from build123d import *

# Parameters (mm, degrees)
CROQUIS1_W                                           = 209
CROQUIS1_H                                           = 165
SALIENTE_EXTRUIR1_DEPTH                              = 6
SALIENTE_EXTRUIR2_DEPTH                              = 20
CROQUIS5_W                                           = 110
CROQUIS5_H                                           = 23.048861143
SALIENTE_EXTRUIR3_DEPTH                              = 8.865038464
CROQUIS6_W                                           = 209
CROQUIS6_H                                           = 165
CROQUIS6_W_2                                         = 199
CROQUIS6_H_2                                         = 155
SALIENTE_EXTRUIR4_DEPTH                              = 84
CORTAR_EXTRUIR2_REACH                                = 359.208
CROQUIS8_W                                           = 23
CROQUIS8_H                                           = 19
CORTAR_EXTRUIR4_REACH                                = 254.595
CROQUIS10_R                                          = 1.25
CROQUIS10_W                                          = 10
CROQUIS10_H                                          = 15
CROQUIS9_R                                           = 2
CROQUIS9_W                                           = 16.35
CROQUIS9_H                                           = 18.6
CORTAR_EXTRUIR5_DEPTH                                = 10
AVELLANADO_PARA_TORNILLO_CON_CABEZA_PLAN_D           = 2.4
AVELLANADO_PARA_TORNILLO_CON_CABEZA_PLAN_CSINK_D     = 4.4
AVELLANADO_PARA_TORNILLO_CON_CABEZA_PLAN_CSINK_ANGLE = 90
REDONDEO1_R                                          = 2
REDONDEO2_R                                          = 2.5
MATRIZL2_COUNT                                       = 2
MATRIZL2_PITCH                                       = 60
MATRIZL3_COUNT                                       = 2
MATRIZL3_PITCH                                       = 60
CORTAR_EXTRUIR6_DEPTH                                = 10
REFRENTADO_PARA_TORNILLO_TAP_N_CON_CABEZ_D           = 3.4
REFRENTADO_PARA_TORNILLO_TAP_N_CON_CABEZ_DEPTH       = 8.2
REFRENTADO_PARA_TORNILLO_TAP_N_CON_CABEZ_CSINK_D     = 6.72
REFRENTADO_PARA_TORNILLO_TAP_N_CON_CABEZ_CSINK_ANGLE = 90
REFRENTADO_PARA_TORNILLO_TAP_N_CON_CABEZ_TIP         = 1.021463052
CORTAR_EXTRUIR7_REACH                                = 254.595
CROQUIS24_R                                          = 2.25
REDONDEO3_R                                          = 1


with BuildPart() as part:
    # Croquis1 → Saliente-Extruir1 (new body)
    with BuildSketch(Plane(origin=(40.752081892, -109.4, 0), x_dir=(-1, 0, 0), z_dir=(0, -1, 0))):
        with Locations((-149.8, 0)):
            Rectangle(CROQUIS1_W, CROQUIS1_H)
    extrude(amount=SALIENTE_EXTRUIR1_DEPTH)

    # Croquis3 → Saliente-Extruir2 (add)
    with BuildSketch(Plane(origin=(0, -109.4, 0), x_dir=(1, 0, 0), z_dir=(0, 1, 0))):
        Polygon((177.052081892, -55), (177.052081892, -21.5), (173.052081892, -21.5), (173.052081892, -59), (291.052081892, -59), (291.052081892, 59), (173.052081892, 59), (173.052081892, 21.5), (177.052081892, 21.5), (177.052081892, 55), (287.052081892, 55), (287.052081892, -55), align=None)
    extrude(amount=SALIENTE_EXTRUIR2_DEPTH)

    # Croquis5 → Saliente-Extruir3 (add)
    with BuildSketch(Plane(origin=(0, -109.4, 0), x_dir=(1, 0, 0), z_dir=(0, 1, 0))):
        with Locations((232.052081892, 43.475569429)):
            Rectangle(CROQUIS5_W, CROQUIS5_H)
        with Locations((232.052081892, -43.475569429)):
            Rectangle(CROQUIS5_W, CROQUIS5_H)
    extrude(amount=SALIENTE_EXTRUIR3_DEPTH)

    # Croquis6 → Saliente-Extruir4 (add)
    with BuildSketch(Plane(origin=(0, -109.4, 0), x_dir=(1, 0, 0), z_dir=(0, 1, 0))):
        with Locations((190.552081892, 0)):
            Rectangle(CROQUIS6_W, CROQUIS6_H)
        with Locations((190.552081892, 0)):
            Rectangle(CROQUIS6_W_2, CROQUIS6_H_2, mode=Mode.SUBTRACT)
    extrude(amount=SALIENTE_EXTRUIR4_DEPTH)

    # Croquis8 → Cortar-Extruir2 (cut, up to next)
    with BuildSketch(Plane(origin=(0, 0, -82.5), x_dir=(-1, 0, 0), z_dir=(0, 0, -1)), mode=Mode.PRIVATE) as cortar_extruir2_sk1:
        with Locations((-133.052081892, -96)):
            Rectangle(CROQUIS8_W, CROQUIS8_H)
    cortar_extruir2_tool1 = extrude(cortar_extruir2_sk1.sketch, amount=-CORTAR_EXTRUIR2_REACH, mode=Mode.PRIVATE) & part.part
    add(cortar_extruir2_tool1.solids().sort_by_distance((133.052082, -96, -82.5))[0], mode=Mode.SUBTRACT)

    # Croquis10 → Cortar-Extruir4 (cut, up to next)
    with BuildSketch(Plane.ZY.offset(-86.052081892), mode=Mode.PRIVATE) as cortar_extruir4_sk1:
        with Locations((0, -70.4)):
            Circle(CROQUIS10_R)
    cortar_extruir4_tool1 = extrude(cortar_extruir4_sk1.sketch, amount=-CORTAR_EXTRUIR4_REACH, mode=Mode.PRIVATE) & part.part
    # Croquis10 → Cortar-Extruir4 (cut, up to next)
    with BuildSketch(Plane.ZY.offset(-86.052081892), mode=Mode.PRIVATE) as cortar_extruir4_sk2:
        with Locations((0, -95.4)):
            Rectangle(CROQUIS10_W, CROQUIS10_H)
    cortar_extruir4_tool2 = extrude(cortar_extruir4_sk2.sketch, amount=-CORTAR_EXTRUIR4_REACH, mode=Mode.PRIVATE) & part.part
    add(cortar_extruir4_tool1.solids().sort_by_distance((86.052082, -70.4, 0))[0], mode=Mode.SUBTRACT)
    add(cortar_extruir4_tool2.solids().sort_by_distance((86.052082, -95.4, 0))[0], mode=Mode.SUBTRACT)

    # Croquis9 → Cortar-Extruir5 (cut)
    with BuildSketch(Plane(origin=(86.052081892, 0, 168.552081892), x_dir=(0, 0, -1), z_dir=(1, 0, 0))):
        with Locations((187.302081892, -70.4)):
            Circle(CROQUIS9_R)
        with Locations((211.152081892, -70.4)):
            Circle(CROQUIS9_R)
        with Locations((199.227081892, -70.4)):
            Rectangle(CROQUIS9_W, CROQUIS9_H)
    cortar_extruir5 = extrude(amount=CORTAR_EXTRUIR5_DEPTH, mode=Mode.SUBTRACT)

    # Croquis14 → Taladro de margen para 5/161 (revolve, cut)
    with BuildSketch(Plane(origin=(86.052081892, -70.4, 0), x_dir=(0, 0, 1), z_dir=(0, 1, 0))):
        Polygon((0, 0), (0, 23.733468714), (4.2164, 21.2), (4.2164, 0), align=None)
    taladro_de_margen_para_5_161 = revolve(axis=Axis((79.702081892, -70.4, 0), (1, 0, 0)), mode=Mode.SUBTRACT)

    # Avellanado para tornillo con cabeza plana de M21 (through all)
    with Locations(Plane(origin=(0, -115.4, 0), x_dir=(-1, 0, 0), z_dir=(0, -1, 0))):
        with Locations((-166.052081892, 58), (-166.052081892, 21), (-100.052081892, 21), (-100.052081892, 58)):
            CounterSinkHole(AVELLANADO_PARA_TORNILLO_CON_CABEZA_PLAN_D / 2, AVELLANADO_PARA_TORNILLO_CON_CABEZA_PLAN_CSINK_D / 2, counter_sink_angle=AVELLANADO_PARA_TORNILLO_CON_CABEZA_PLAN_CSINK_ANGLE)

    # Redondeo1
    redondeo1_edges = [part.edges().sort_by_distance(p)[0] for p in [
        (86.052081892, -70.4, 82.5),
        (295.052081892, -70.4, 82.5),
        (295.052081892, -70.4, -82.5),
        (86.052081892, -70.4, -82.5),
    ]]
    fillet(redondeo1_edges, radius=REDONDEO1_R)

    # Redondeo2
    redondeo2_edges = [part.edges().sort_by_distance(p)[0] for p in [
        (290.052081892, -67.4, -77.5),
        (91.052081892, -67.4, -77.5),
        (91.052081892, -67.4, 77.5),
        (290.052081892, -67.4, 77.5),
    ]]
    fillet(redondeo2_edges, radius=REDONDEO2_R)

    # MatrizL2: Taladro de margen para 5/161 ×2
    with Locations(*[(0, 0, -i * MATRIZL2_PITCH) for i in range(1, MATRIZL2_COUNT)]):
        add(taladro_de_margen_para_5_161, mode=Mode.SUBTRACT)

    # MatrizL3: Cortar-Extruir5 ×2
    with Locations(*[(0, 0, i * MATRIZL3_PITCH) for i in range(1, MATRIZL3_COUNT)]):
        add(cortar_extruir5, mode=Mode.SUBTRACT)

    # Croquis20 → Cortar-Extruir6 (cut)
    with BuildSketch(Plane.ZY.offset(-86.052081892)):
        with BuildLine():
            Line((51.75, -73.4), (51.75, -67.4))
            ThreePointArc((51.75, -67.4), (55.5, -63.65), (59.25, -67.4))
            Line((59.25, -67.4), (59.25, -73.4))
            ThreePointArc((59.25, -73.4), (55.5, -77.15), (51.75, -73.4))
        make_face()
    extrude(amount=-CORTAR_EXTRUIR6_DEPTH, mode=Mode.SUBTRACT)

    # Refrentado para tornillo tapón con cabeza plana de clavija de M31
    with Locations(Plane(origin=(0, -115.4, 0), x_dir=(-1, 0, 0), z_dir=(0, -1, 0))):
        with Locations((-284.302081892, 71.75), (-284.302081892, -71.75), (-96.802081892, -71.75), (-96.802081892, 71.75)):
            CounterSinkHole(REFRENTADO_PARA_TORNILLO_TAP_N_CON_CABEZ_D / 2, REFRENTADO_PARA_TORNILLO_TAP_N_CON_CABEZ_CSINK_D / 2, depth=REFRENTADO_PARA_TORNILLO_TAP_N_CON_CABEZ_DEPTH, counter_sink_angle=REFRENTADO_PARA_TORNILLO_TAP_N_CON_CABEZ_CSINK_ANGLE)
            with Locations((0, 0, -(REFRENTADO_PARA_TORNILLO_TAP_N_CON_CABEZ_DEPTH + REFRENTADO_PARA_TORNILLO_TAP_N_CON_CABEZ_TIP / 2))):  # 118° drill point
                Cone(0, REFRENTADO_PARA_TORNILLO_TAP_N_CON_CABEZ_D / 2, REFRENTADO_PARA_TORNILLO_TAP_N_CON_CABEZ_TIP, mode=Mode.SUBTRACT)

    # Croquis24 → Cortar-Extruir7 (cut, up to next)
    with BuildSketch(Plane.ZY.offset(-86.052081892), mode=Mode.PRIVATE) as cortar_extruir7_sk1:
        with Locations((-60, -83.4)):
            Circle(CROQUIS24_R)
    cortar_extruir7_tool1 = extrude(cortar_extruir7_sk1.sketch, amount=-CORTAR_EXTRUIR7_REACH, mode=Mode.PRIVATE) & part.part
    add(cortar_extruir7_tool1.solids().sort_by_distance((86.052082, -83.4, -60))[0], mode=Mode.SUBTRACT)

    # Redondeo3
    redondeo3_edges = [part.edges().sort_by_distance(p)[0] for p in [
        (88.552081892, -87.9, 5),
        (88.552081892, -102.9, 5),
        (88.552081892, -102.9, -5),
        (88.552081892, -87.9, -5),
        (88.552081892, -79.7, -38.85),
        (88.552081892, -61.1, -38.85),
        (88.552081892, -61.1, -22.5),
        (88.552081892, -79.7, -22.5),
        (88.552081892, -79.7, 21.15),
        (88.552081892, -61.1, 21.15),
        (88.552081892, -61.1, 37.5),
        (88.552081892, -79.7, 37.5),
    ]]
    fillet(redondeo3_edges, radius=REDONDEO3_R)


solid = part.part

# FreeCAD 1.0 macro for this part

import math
import FreeCAD as App
import Part
import Sketcher
from FreeCAD import Vector
Q = App.Units.Quantity


def edges_at(feature, points):
    """Names of the edges that pass closest to the given points."""
    edges = feature.Shape.Edges
    near = lambda p: min(range(len(edges)), key=lambda i: edges[i].distToShape(Part.Vertex(*p))[0])
    return sorted({f"Edge{near(p) + 1}" for p in points})

doc = App.newDocument("Part")
body = doc.addObject("PartDesign::Body", "Body")

sketch1 = body.newObject("Sketcher::SketchObject", "Sketch")
sketch1.AttachmentSupport = (doc.getObject("XZ_Plane"), [""])
sketch1.MapMode = "FlatFace"
sketch1.AttachmentOffset = App.Placement(Vector(0, 0, 109.4), App.Rotation())
sketch1.addGeometry(Part.LineSegment(Vector(295, -82, 0), Vector(295, 82, 0)), False)
sketch1.addGeometry(Part.LineSegment(Vector(295, 82, 0), Vector(86, 82, 0)), False)
sketch1.addGeometry(Part.LineSegment(Vector(86, 82, 0), Vector(86, -82, 0)), False)
sketch1.addGeometry(Part.LineSegment(Vector(86, -82, 0), Vector(295, -82, 0)), False)
sketch1.addConstraint(Sketcher.Constraint("Coincident", 0, 2, 1, 1))
sketch1.addConstraint(Sketcher.Constraint("Coincident", 1, 2, 2, 1))
sketch1.addConstraint(Sketcher.Constraint("Coincident", 2, 2, 3, 1))
sketch1.addConstraint(Sketcher.Constraint("Coincident", 3, 2, 0, 1))
sketch1.addConstraint(Sketcher.Constraint("Vertical", 0))
sketch1.addConstraint(Sketcher.Constraint("Horizontal", 1))
sketch1.addConstraint(Sketcher.Constraint("Vertical", 2))
sketch1.addConstraint(Sketcher.Constraint("Horizontal", 3))
sketch1.addConstraint(Sketcher.Constraint("DistanceX", 1, 2, 1, 1, Q("209 mm")))
sketch1.addConstraint(Sketcher.Constraint("DistanceY", 0, 1, 0, 2, Q("165 mm")))
sketch1.addConstraint(Sketcher.Constraint("DistanceY", -1, 1, 0, 2, Q("82.5 mm")))
sketch1.addConstraint(Sketcher.Constraint("DistanceX", -1, 1, 0, 2, Q("295.052082 mm")))
pad1 = body.newObject("PartDesign::Pad", "Pad")
pad1.Profile = sketch1
pad1.Length = 6

sketch2 = body.newObject("Sketcher::SketchObject", "Sketch001")
sketch2.AttachmentSupport = (doc.getObject("XZ_Plane"), [""])
sketch2.MapMode = "FlatFace"
sketch2.AttachmentOffset = App.Placement(Vector(0, 0, 109.4), App.Rotation())
sketch2.addGeometry(Part.LineSegment(Vector(177.1, 55, 0), Vector(177.1, 21.5, 0)), False)
sketch2.addGeometry(Part.LineSegment(Vector(177.1, 21.5, 0), Vector(173.1, 21.5, 0)), False)
sketch2.addGeometry(Part.LineSegment(Vector(173.1, 21.5, 0), Vector(173.1, 59, 0)), False)
sketch2.addGeometry(Part.LineSegment(Vector(173.1, 59, 0), Vector(291.1, 59, 0)), False)
sketch2.addGeometry(Part.LineSegment(Vector(291.1, 59, 0), Vector(291.1, -59, 0)), False)
sketch2.addGeometry(Part.LineSegment(Vector(291.1, -59, 0), Vector(173.1, -59, 0)), False)
sketch2.addGeometry(Part.LineSegment(Vector(173.1, -59, 0), Vector(173.1, -21.5, 0)), False)
sketch2.addGeometry(Part.LineSegment(Vector(173.1, -21.5, 0), Vector(177.1, -21.5, 0)), False)
sketch2.addGeometry(Part.LineSegment(Vector(177.1, -21.5, 0), Vector(177.1, -55, 0)), False)
sketch2.addGeometry(Part.LineSegment(Vector(177.1, -55, 0), Vector(287.1, -55, 0)), False)
sketch2.addGeometry(Part.LineSegment(Vector(287.1, -55, 0), Vector(287.1, 55, 0)), False)
sketch2.addGeometry(Part.LineSegment(Vector(287.1, 55, 0), Vector(177.1, 55, 0)), False)
sketch2.addConstraint(Sketcher.Constraint("Coincident", 0, 2, 1, 1))
sketch2.addConstraint(Sketcher.Constraint("Coincident", 1, 2, 2, 1))
sketch2.addConstraint(Sketcher.Constraint("Coincident", 2, 2, 3, 1))
sketch2.addConstraint(Sketcher.Constraint("Coincident", 3, 2, 4, 1))
sketch2.addConstraint(Sketcher.Constraint("Coincident", 4, 2, 5, 1))
sketch2.addConstraint(Sketcher.Constraint("Coincident", 5, 2, 6, 1))
sketch2.addConstraint(Sketcher.Constraint("Coincident", 6, 2, 7, 1))
sketch2.addConstraint(Sketcher.Constraint("Coincident", 7, 2, 8, 1))
sketch2.addConstraint(Sketcher.Constraint("Coincident", 8, 2, 9, 1))
sketch2.addConstraint(Sketcher.Constraint("Coincident", 9, 2, 10, 1))
sketch2.addConstraint(Sketcher.Constraint("Coincident", 10, 2, 11, 1))
sketch2.addConstraint(Sketcher.Constraint("Coincident", 11, 2, 0, 1))
sketch2.addConstraint(Sketcher.Constraint("Vertical", 0))
sketch2.addConstraint(Sketcher.Constraint("Horizontal", 1))
sketch2.addConstraint(Sketcher.Constraint("Vertical", 2))
sketch2.addConstraint(Sketcher.Constraint("Horizontal", 3))
sketch2.addConstraint(Sketcher.Constraint("Vertical", 4))
sketch2.addConstraint(Sketcher.Constraint("Horizontal", 5))
sketch2.addConstraint(Sketcher.Constraint("Vertical", 6))
sketch2.addConstraint(Sketcher.Constraint("Horizontal", 7))
sketch2.addConstraint(Sketcher.Constraint("Vertical", 8))
sketch2.addConstraint(Sketcher.Constraint("Horizontal", 9))
sketch2.addConstraint(Sketcher.Constraint("Vertical", 10))
sketch2.addConstraint(Sketcher.Constraint("Horizontal", 11))
sketch2.addConstraint(Sketcher.Constraint("Symmetric", 2, 2, 5, 2, -1))
sketch2.addConstraint(Sketcher.Constraint("Symmetric", 0, 2, 7, 2, -1))
sketch2.addConstraint(Sketcher.Constraint("Equal", 5, 4))
sketch2.addConstraint(Sketcher.Constraint("Equal", 0, 8))
sketch2.addConstraint(Sketcher.Constraint("Equal", 11, 10))
sketch2.addConstraint(Sketcher.Constraint("DistanceX", 1, 2, 1, 1, Q("4 mm")))
sketch2.addConstraint(Sketcher.Constraint("DistanceX", 3, 1, 3, 2, Q("118 mm")))
sketch2.addConstraint(Sketcher.Constraint("DistanceX", 9, 1, 9, 2, Q("110 mm")))
sketch2.addConstraint(Sketcher.Constraint("DistanceY", 0, 2, 0, 1, Q("33.5 mm")))
sketch2.addConstraint(Sketcher.Constraint("DistanceX", -1, 1, 0, 2, Q("177.052082 mm")))
pad2 = body.newObject("PartDesign::Pad", "Pad001")
pad2.Profile = sketch2
pad2.Length = 20
pad2.Reversed = True

sketch3 = body.newObject("Sketcher::SketchObject", "Sketch002")
sketch3.AttachmentSupport = (doc.getObject("XZ_Plane"), [""])
sketch3.MapMode = "FlatFace"
sketch3.AttachmentOffset = App.Placement(Vector(0, 0, 109.4), App.Rotation())
sketch3.addGeometry(Part.LineSegment(Vector(177, -55, 0), Vector(177, -32, 0)), False)
sketch3.addGeometry(Part.LineSegment(Vector(177, -32, 0), Vector(287, -32, 0)), False)
sketch3.addGeometry(Part.LineSegment(Vector(287, -32, 0), Vector(287, -55, 0)), False)
sketch3.addGeometry(Part.LineSegment(Vector(287, -55, 0), Vector(177, -55, 0)), False)
sketch3.addGeometry(Part.LineSegment(Vector(177, 32, 0), Vector(177, 55, 0)), False)
sketch3.addGeometry(Part.LineSegment(Vector(177, 55, 0), Vector(287, 55, 0)), False)
sketch3.addGeometry(Part.LineSegment(Vector(287, 55, 0), Vector(287, 32, 0)), False)
sketch3.addGeometry(Part.LineSegment(Vector(287, 32, 0), Vector(177, 32, 0)), False)
sketch3.addConstraint(Sketcher.Constraint("Coincident", 0, 2, 1, 1))
sketch3.addConstraint(Sketcher.Constraint("Coincident", 1, 2, 2, 1))
sketch3.addConstraint(Sketcher.Constraint("Coincident", 2, 2, 3, 1))
sketch3.addConstraint(Sketcher.Constraint("Coincident", 3, 2, 0, 1))
sketch3.addConstraint(Sketcher.Constraint("Coincident", 4, 2, 5, 1))
sketch3.addConstraint(Sketcher.Constraint("Coincident", 5, 2, 6, 1))
sketch3.addConstraint(Sketcher.Constraint("Coincident", 6, 2, 7, 1))
sketch3.addConstraint(Sketcher.Constraint("Coincident", 7, 2, 4, 1))
sketch3.addConstraint(Sketcher.Constraint("Vertical", 0))
sketch3.addConstraint(Sketcher.Constraint("Horizontal", 1))
sketch3.addConstraint(Sketcher.Constraint("Vertical", 2))
sketch3.addConstraint(Sketcher.Constraint("Horizontal", 3))
sketch3.addConstraint(Sketcher.Constraint("Vertical", 4))
sketch3.addConstraint(Sketcher.Constraint("Horizontal", 5))
sketch3.addConstraint(Sketcher.Constraint("Vertical", 6))
sketch3.addConstraint(Sketcher.Constraint("Horizontal", 7))
sketch3.addConstraint(Sketcher.Constraint("Symmetric", 3, 2, 4, 2, -1))
sketch3.addConstraint(Sketcher.Constraint("Symmetric", 1, 2, 6, 2, -1))
sketch3.addConstraint(Sketcher.Constraint("DistanceX", 1, 1, 1, 2, Q("110 mm")))
sketch3.addConstraint(Sketcher.Constraint("DistanceY", 2, 2, -1, 1, Q("55 mm")))
sketch3.addConstraint(Sketcher.Constraint("DistanceY", 0, 1, 0, 2, Q("23.048861 mm")))
sketch3.addConstraint(Sketcher.Constraint("DistanceX", -1, 1, 0, 2, Q("177.052082 mm")))
pad3 = body.newObject("PartDesign::Pad", "Pad002")
pad3.Profile = sketch3
pad3.Length = 8.865038
pad3.Reversed = True

sketch4 = body.newObject("Sketcher::SketchObject", "Sketch003")
sketch4.AttachmentSupport = (doc.getObject("XZ_Plane"), [""])
sketch4.MapMode = "FlatFace"
sketch4.AttachmentOffset = App.Placement(Vector(0, 0, 109.4), App.Rotation())
sketch4.addGeometry(Part.LineSegment(Vector(86, -82, 0), Vector(86, 82, 0)), False)
sketch4.addGeometry(Part.LineSegment(Vector(86, 82, 0), Vector(295, 82, 0)), False)
sketch4.addGeometry(Part.LineSegment(Vector(295, 82, 0), Vector(295, -82, 0)), False)
sketch4.addGeometry(Part.LineSegment(Vector(295, -82, 0), Vector(86, -82, 0)), False)
sketch4.addGeometry(Part.LineSegment(Vector(290, 78, 0), Vector(91, 78, 0)), False)
sketch4.addGeometry(Part.LineSegment(Vector(91, 78, 0), Vector(91, -78, 0)), False)
sketch4.addGeometry(Part.LineSegment(Vector(91, -78, 0), Vector(290, -78, 0)), False)
sketch4.addGeometry(Part.LineSegment(Vector(290, -78, 0), Vector(290, 78, 0)), False)
sketch4.addConstraint(Sketcher.Constraint("Coincident", 0, 2, 1, 1))
sketch4.addConstraint(Sketcher.Constraint("Coincident", 1, 2, 2, 1))
sketch4.addConstraint(Sketcher.Constraint("Coincident", 2, 2, 3, 1))
sketch4.addConstraint(Sketcher.Constraint("Coincident", 3, 2, 0, 1))
sketch4.addConstraint(Sketcher.Constraint("Coincident", 4, 2, 5, 1))
sketch4.addConstraint(Sketcher.Constraint("Coincident", 5, 2, 6, 1))
sketch4.addConstraint(Sketcher.Constraint("Coincident", 6, 2, 7, 1))
sketch4.addConstraint(Sketcher.Constraint("Coincident", 7, 2, 4, 1))
sketch4.addConstraint(Sketcher.Constraint("Vertical", 0))
sketch4.addConstraint(Sketcher.Constraint("Horizontal", 1))
sketch4.addConstraint(Sketcher.Constraint("Vertical", 2))
sketch4.addConstraint(Sketcher.Constraint("Horizontal", 3))
sketch4.addConstraint(Sketcher.Constraint("Horizontal", 4))
sketch4.addConstraint(Sketcher.Constraint("Vertical", 5))
sketch4.addConstraint(Sketcher.Constraint("Horizontal", 6))
sketch4.addConstraint(Sketcher.Constraint("Vertical", 7))
sketch4.addConstraint(Sketcher.Constraint("DistanceX", 1, 1, 1, 2, Q("209 mm")))
sketch4.addConstraint(Sketcher.Constraint("DistanceX", 4, 2, 4, 1, Q("199 mm")))
sketch4.addConstraint(Sketcher.Constraint("DistanceY", 0, 1, 0, 2, Q("165 mm")))
sketch4.addConstraint(Sketcher.Constraint("DistanceY", 5, 2, 5, 1, Q("155 mm")))
sketch4.addConstraint(Sketcher.Constraint("DistanceX", 0, 2, 4, 2, Q("5 mm")))
sketch4.addConstraint(Sketcher.Constraint("DistanceY", 4, 2, 0, 2, Q("5 mm")))
sketch4.addConstraint(Sketcher.Constraint("DistanceY", -1, 1, 0, 2, Q("82.5 mm")))
sketch4.addConstraint(Sketcher.Constraint("DistanceX", -1, 1, 0, 2, Q("86.052082 mm")))
pad4 = body.newObject("PartDesign::Pad", "Pad003")
pad4.Profile = sketch4
pad4.Length = 84
pad4.Reversed = True

sketch5 = body.newObject("Sketcher::SketchObject", "Sketch004")
sketch5.AttachmentSupport = (doc.getObject("XY_Plane"), [""])
sketch5.MapMode = "FlatFace"
sketch5.AttachmentOffset = App.Placement(Vector(0, 0, -82.5), App.Rotation())
sketch5.addGeometry(Part.LineSegment(Vector(145, -86, 0), Vector(145, -106, 0)), False)
sketch5.addGeometry(Part.LineSegment(Vector(145, -106, 0), Vector(122, -106, 0)), False)
sketch5.addGeometry(Part.LineSegment(Vector(122, -106, 0), Vector(122, -86, 0)), False)
sketch5.addGeometry(Part.LineSegment(Vector(122, -86, 0), Vector(145, -86, 0)), False)
sketch5.addConstraint(Sketcher.Constraint("Coincident", 0, 2, 1, 1))
sketch5.addConstraint(Sketcher.Constraint("Coincident", 1, 2, 2, 1))
sketch5.addConstraint(Sketcher.Constraint("Coincident", 2, 2, 3, 1))
sketch5.addConstraint(Sketcher.Constraint("Coincident", 3, 2, 0, 1))
sketch5.addConstraint(Sketcher.Constraint("Vertical", 0))
sketch5.addConstraint(Sketcher.Constraint("Horizontal", 1))
sketch5.addConstraint(Sketcher.Constraint("Vertical", 2))
sketch5.addConstraint(Sketcher.Constraint("Horizontal", 3))
sketch5.addConstraint(Sketcher.Constraint("DistanceX", 1, 2, 1, 1, Q("23 mm")))
sketch5.addConstraint(Sketcher.Constraint("DistanceY", 0, 2, 0, 1, Q("19 mm")))
sketch5.addConstraint(Sketcher.Constraint("DistanceY", 0, 2, -1, 1, Q("105.5 mm")))
sketch5.addConstraint(Sketcher.Constraint("DistanceX", -1, 1, 0, 2, Q("144.552082 mm")))
pocket1 = body.newObject("PartDesign::Pocket", "Pocket")
pocket1.Profile = sketch5
pocket1.Type = "UpToFirst"
pocket1.Reversed = True

sketch6 = body.newObject("Sketcher::SketchObject", "Sketch005")
sketch6.AttachmentSupport = (doc.getObject("YZ_Plane"), [""])
sketch6.MapMode = "FlatFace"
sketch6.AttachmentOffset = App.Placement(Vector(0, 0, 86.052082), App.Rotation())
sketch6.addGeometry(Part.Circle(Vector(-70.4, 0, 0), Vector(0, 0, 1), 1.2), False)
sketch6.addConstraint(Sketcher.Constraint("PointOnObject", 0, 3, -1))
sketch6.addConstraint(Sketcher.Constraint("Diameter", 0, Q("2.5 mm")))
sketch6.addConstraint(Sketcher.Constraint("DistanceX", 0, 3, -1, 1, Q("70.4 mm")))
pocket2 = body.newObject("PartDesign::Pocket", "Pocket001")
pocket2.Profile = sketch6
pocket2.Type = "UpToFirst"
pocket2.Reversed = True

sketch7 = body.newObject("Sketcher::SketchObject", "Sketch006")
sketch7.AttachmentSupport = (doc.getObject("YZ_Plane"), [""])
sketch7.MapMode = "FlatFace"
sketch7.AttachmentOffset = App.Placement(Vector(0, 0, 86.052082), App.Rotation())
sketch7.addGeometry(Part.LineSegment(Vector(-88, -5, 0), Vector(-103, -5, 0)), False)
sketch7.addGeometry(Part.LineSegment(Vector(-103, -5, 0), Vector(-103, 5, 0)), False)
sketch7.addGeometry(Part.LineSegment(Vector(-103, 5, 0), Vector(-88, 5, 0)), False)
sketch7.addGeometry(Part.LineSegment(Vector(-88, 5, 0), Vector(-88, -5, 0)), False)
sketch7.addConstraint(Sketcher.Constraint("Coincident", 0, 2, 1, 1))
sketch7.addConstraint(Sketcher.Constraint("Coincident", 1, 2, 2, 1))
sketch7.addConstraint(Sketcher.Constraint("Coincident", 2, 2, 3, 1))
sketch7.addConstraint(Sketcher.Constraint("Coincident", 3, 2, 0, 1))
sketch7.addConstraint(Sketcher.Constraint("Horizontal", 0))
sketch7.addConstraint(Sketcher.Constraint("Vertical", 1))
sketch7.addConstraint(Sketcher.Constraint("Horizontal", 2))
sketch7.addConstraint(Sketcher.Constraint("Vertical", 3))
sketch7.addConstraint(Sketcher.Constraint("DistanceX", 0, 2, 0, 1, Q("15 mm")))
sketch7.addConstraint(Sketcher.Constraint("DistanceY", 1, 1, 1, 2, Q("10 mm")))
sketch7.addConstraint(Sketcher.Constraint("DistanceY", 0, 2, -1, 1, Q("5 mm")))
sketch7.addConstraint(Sketcher.Constraint("DistanceX", 0, 2, -1, 1, Q("102.9 mm")))
pocket3 = body.newObject("PartDesign::Pocket", "Pocket002")
pocket3.Profile = sketch7
pocket3.Type = "UpToFirst"
pocket3.Reversed = True

sketch8 = body.newObject("Sketcher::SketchObject", "Sketch007")
sketch8.AttachmentSupport = (doc.getObject("YZ_Plane"), [""])
sketch8.MapMode = "FlatFace"
sketch8.AttachmentOffset = App.Placement(Vector(0, 0, 86.052082), App.Rotation())
sketch8.addGeometry(Part.Circle(Vector(-70.4, -18.8, 0), Vector(0, 0, 1), 2), False)
sketch8.addGeometry(Part.Circle(Vector(-70.4, -42.6, 0), Vector(0, 0, 1), 2), False)
sketch8.addGeometry(Part.LineSegment(Vector(-61.1, -22.5, 0), Vector(-79.7, -22.5, 0)), False)
sketch8.addGeometry(Part.LineSegment(Vector(-79.7, -22.5, 0), Vector(-79.7, -38.9, 0)), False)
sketch8.addGeometry(Part.LineSegment(Vector(-79.7, -38.9, 0), Vector(-61.1, -38.9, 0)), False)
sketch8.addGeometry(Part.LineSegment(Vector(-61.1, -38.9, 0), Vector(-61.1, -22.5, 0)), False)
sketch8.addConstraint(Sketcher.Constraint("Coincident", 2, 2, 3, 1))
sketch8.addConstraint(Sketcher.Constraint("Coincident", 3, 2, 4, 1))
sketch8.addConstraint(Sketcher.Constraint("Coincident", 4, 2, 5, 1))
sketch8.addConstraint(Sketcher.Constraint("Coincident", 5, 2, 2, 1))
sketch8.addConstraint(Sketcher.Constraint("Horizontal", 2))
sketch8.addConstraint(Sketcher.Constraint("Vertical", 3))
sketch8.addConstraint(Sketcher.Constraint("Horizontal", 4))
sketch8.addConstraint(Sketcher.Constraint("Vertical", 5))
sketch8.addConstraint(Sketcher.Constraint("Equal", 0, 1))
sketch8.addConstraint(Sketcher.Constraint("Vertical", 0, 3, 1, 3))
sketch8.addConstraint(Sketcher.Constraint("Diameter", 0, Q("4 mm")))
sketch8.addConstraint(Sketcher.Constraint("DistanceX", 2, 2, 2, 1, Q("18.6 mm")))
sketch8.addConstraint(Sketcher.Constraint("DistanceY", 3, 2, 3, 1, Q("16.35 mm")))
sketch8.addConstraint(Sketcher.Constraint("DistanceX", 0, 3, -1, 1, Q("70.4 mm")))
sketch8.addConstraint(Sketcher.Constraint("DistanceY", 1, 3, -1, 1, Q("42.6 mm")))
sketch8.addConstraint(Sketcher.Constraint("DistanceX", 2, 2, -1, 1, Q("79.7 mm")))
sketch8.addConstraint(Sketcher.Constraint("DistanceY", 2, 2, -1, 1, Q("22.5 mm")))
sketch8.addConstraint(Sketcher.Constraint("DistanceY", 3, 2, 0, 3, Q("20.1 mm")))
pocket4 = body.newObject("PartDesign::Pocket", "Pocket003")
pocket4.Profile = sketch8
pocket4.Length = 10
pocket4.Reversed = True

sketch9 = body.newObject("Sketcher::SketchObject", "Sketch008")
sketch9.AttachmentSupport = (doc.getObject("XZ_Plane"), [""])
sketch9.MapMode = "FlatFace"
sketch9.AttachmentOffset = App.Placement(Vector(0, 0, 70.4), App.Rotation())
sketch9.addGeometry(Part.LineSegment(Vector(109.8, 0, 0), Vector(86.1, 0, 0)), False)
sketch9.addGeometry(Part.LineSegment(Vector(86.1, 0, 0), Vector(86.1, 4.2, 0)), False)
sketch9.addGeometry(Part.LineSegment(Vector(86.1, 4.2, 0), Vector(107.3, 4.2, 0)), False)
sketch9.addGeometry(Part.LineSegment(Vector(107.3, 4.2, 0), Vector(109.8, 0, 0)), False)
sketch9.addConstraint(Sketcher.Constraint("Coincident", 0, 2, 1, 1))
sketch9.addConstraint(Sketcher.Constraint("Coincident", 1, 2, 2, 1))
sketch9.addConstraint(Sketcher.Constraint("Coincident", 2, 2, 3, 1))
sketch9.addConstraint(Sketcher.Constraint("Coincident", 3, 2, 0, 1))
sketch9.addConstraint(Sketcher.Constraint("Horizontal", 0))
sketch9.addConstraint(Sketcher.Constraint("Vertical", 1))
sketch9.addConstraint(Sketcher.Constraint("Horizontal", 2))
sketch9.addConstraint(Sketcher.Constraint("PointOnObject", 0, 2, -1))
sketch9.addConstraint(Sketcher.Constraint("Angle", 3, Q("-59 deg")))
sketch9.addConstraint(Sketcher.Constraint("DistanceX", 2, 1, 2, 2, Q("21.2 mm")))
sketch9.addConstraint(Sketcher.Constraint("DistanceY", 1, 1, 1, 2, Q("4.2164 mm")))
sketch9.addConstraint(Sketcher.Constraint("DistanceX", -1, 1, 0, 2, Q("86.052082 mm")))
groove = body.newObject("PartDesign::Groove", "Groove")
groove.Profile = sketch9
groove.ReferenceAxis = (sketch9, ["H_Axis"])
groove.Angle = 360

sketch10 = body.newObject("Sketcher::SketchObject", "Sketch009")
sketch10.AttachmentSupport = (doc.getObject("XZ_Plane"), [""])
sketch10.MapMode = "FlatFace"
sketch10.AttachmentOffset = App.Placement(Vector(0, 0, 115.4), App.Rotation())
sketch10.addGeometry(Part.Circle(Vector(166.1, -58, 0), Vector(0, 0, 1), 1.2), False)
sketch10.addGeometry(Part.Circle(Vector(166.1, -21, 0), Vector(0, 0, 1), 1.2), False)
sketch10.addGeometry(Part.Circle(Vector(100.1, -21, 0), Vector(0, 0, 1), 1.2), False)
sketch10.addGeometry(Part.Circle(Vector(100.1, -58, 0), Vector(0, 0, 1), 1.2), False)
sketch10.addConstraint(Sketcher.Constraint("Equal", 0, 1))
sketch10.addConstraint(Sketcher.Constraint("Equal", 1, 2))
sketch10.addConstraint(Sketcher.Constraint("Equal", 2, 3))
sketch10.addConstraint(Sketcher.Constraint("Horizontal", 1, 3, 2, 3))
sketch10.addConstraint(Sketcher.Constraint("Horizontal", 0, 3, 3, 3))
sketch10.addConstraint(Sketcher.Constraint("Vertical", 0, 3, 1, 3))
sketch10.addConstraint(Sketcher.Constraint("Vertical", 2, 3, 3, 3))
sketch10.addConstraint(Sketcher.Constraint("Diameter", 0, Q("2.4 mm")))
sketch10.addConstraint(Sketcher.Constraint("DistanceY", 0, 3, -1, 1, Q("58 mm")))
sketch10.addConstraint(Sketcher.Constraint("DistanceY", 1, 3, -1, 1, Q("21 mm")))
sketch10.addConstraint(Sketcher.Constraint("DistanceX", 2, 3, 1, 3, Q("66 mm")))
sketch10.addConstraint(Sketcher.Constraint("DistanceX", -1, 1, 0, 3, Q("166.052082 mm")))
doc.recompute()
hole = body.newObject("PartDesign::Hole", "Hole")
hole.Profile = sketch10
hole.ThreadType = "None"
hole.Diameter = 2.4
hole.DepthType = "ThroughAll"
hole.HoleCutType = "Countersink"
hole.HoleCutDiameter = 4.4
hole.HoleCutCountersinkAngle = 90
doc.recompute()

fillet = body.newObject("PartDesign::Fillet", "Fillet")
fillet.Base = (hole, edges_at(hole, [
    (86.052, -70.4, 82.5),
    (295.052, -70.4, 82.5),
    (295.052, -70.4, -82.5),
    (86.052, -70.4, -82.5),
]))
fillet.Radius = 2
doc.recompute()

fillet2 = body.newObject("PartDesign::Fillet", "Fillet001")
fillet2.Base = (fillet, edges_at(fillet, [
    (290.052, -67.4, -77.5),
    (91.052, -67.4, -77.5),
    (91.052, -67.4, 77.5),
    (290.052, -67.4, 77.5),
]))
fillet2.Radius = 2.5
doc.recompute()

linearpattern = body.newObject("PartDesign::LinearPattern", "LinearPattern")
linearpattern.Originals = [groove]
linearpattern.Direction = (doc.getObject("Z_Axis"), [""])
linearpattern.Mode = "offset"
linearpattern.Offset = 60
linearpattern.Occurrences = 2
linearpattern.Reversed = True
body.Tip = linearpattern
doc.recompute()

linearpattern2 = body.newObject("PartDesign::LinearPattern", "LinearPattern001")
linearpattern2.Originals = [pocket4]
linearpattern2.Direction = (doc.getObject("Z_Axis"), [""])
linearpattern2.Mode = "offset"
linearpattern2.Offset = 60
linearpattern2.Occurrences = 2
body.Tip = linearpattern2

sketch11 = body.newObject("Sketcher::SketchObject", "Sketch010")
sketch11.AttachmentSupport = (doc.getObject("YZ_Plane"), [""])
sketch11.MapMode = "FlatFace"
sketch11.AttachmentOffset = App.Placement(Vector(0, 0, 86.052082), App.Rotation())
sketch11.addGeometry(Part.LineSegment(Vector(-67.4, 51.8, 0), Vector(-73.4, 51.8, 0)), False)
sketch11.addGeometry(Part.ArcOfCircle(Part.Circle(Vector(-73.4, 55.5, 0), Vector(0, 0, 1), 3.8), math.radians(90), math.radians(270)), False)
sketch11.addGeometry(Part.LineSegment(Vector(-73.4, 59.2, 0), Vector(-67.4, 59.2, 0)), False)
sketch11.addGeometry(Part.ArcOfCircle(Part.Circle(Vector(-67.4, 55.5, 0), Vector(0, 0, 1), 3.8), math.radians(-90), math.radians(90)), False)
sketch11.addConstraint(Sketcher.Constraint("Tangent", 0, 2, 1, 2))
sketch11.addConstraint(Sketcher.Constraint("Tangent", 1, 1, 2, 1))
sketch11.addConstraint(Sketcher.Constraint("Tangent", 2, 2, 3, 2))
sketch11.addConstraint(Sketcher.Constraint("Tangent", 3, 1, 0, 1))
sketch11.addConstraint(Sketcher.Constraint("Horizontal", 0))
sketch11.addConstraint(Sketcher.Constraint("Horizontal", 2))
sketch11.addConstraint(Sketcher.Constraint("DistanceX", 0, 2, 0, 1, Q("6 mm")))
sketch11.addConstraint(Sketcher.Constraint("Radius", 1, Q("3.75 mm")))
sketch11.addConstraint(Sketcher.Constraint("DistanceX", 1, 3, -1, 1, Q("73.4 mm")))
sketch11.addConstraint(Sketcher.Constraint("DistanceY", -1, 1, 1, 3, Q("55.5 mm")))
pocket5 = body.newObject("PartDesign::Pocket", "Pocket004")
pocket5.Profile = sketch11
pocket5.Length = 10
pocket5.Reversed = True

sketch12 = body.newObject("Sketcher::SketchObject", "Sketch011")
sketch12.AttachmentSupport = (doc.getObject("XZ_Plane"), [""])
sketch12.MapMode = "FlatFace"
sketch12.AttachmentOffset = App.Placement(Vector(0, 0, 115.4), App.Rotation())
sketch12.addGeometry(Part.Circle(Vector(284.3, -71.8, 0), Vector(0, 0, 1), 1.7), False)
sketch12.addGeometry(Part.Circle(Vector(284.3, 71.8, 0), Vector(0, 0, 1), 1.7), False)
sketch12.addGeometry(Part.Circle(Vector(96.8, 71.8, 0), Vector(0, 0, 1), 1.7), False)
sketch12.addGeometry(Part.Circle(Vector(96.8, -71.8, 0), Vector(0, 0, 1), 1.7), False)
sketch12.addConstraint(Sketcher.Constraint("Equal", 0, 1))
sketch12.addConstraint(Sketcher.Constraint("Equal", 1, 2))
sketch12.addConstraint(Sketcher.Constraint("Equal", 2, 3))
sketch12.addConstraint(Sketcher.Constraint("Symmetric", 0, 3, 1, 3, -1))
sketch12.addConstraint(Sketcher.Constraint("Symmetric", 2, 3, 3, 3, -1))
sketch12.addConstraint(Sketcher.Constraint("Horizontal", 1, 3, 2, 3))
sketch12.addConstraint(Sketcher.Constraint("Diameter", 0, Q("3.4 mm")))
sketch12.addConstraint(Sketcher.Constraint("DistanceY", 0, 3, 1, 3, Q("143.5 mm")))
sketch12.addConstraint(Sketcher.Constraint("DistanceX", 2, 3, 1, 3, Q("187.5 mm")))
sketch12.addConstraint(Sketcher.Constraint("DistanceX", -1, 1, 0, 3, Q("284.302082 mm")))
doc.recompute()
hole2 = body.newObject("PartDesign::Hole", "Hole001")
hole2.Profile = sketch12
hole2.ThreadType = "None"
hole2.Diameter = 3.4
hole2.DepthType = "Dimension"
hole2.Depth = 8.2
hole2.DrillPoint = "Angled"
hole2.DrillPointAngle = 118
hole2.HoleCutType = "Countersink"
hole2.HoleCutDiameter = 6.72
hole2.HoleCutCountersinkAngle = 90

sketch13 = body.newObject("Sketcher::SketchObject", "Sketch012")
sketch13.AttachmentSupport = (doc.getObject("YZ_Plane"), [""])
sketch13.MapMode = "FlatFace"
sketch13.AttachmentOffset = App.Placement(Vector(0, 0, 86.052082), App.Rotation())
sketch13.addGeometry(Part.Circle(Vector(-83.4, -60, 0), Vector(0, 0, 1), 2.2), False)
sketch13.addConstraint(Sketcher.Constraint("Diameter", 0, Q("4.5 mm")))
sketch13.addConstraint(Sketcher.Constraint("DistanceY", 0, 3, -1, 1, Q("60 mm")))
sketch13.addConstraint(Sketcher.Constraint("DistanceX", 0, 3, -1, 1, Q("83.4 mm")))
pocket6 = body.newObject("PartDesign::Pocket", "Pocket005")
pocket6.Profile = sketch13
pocket6.Type = "UpToFirst"
pocket6.Reversed = True
doc.recompute()

fillet3 = body.newObject("PartDesign::Fillet", "Fillet002")
fillet3.Base = (pocket6, edges_at(pocket6, [
    (88.552, -87.9, 5),
    (88.552, -102.9, 5),
    (88.552, -102.9, -5),
    (88.552, -87.9, -5),
    (88.552, -79.7, -38.85),
    (88.552, -61.1, -38.85),
    (88.552, -61.1, -22.5),
    (88.552, -79.7, -22.5),
    (88.552, -79.7, 21.15),
    (88.552, -61.1, 21.15),
    (88.552, -61.1, 37.5),
    (88.552, -79.7, 37.5),
]))
fillet3.Radius = 1

doc.recompute()
